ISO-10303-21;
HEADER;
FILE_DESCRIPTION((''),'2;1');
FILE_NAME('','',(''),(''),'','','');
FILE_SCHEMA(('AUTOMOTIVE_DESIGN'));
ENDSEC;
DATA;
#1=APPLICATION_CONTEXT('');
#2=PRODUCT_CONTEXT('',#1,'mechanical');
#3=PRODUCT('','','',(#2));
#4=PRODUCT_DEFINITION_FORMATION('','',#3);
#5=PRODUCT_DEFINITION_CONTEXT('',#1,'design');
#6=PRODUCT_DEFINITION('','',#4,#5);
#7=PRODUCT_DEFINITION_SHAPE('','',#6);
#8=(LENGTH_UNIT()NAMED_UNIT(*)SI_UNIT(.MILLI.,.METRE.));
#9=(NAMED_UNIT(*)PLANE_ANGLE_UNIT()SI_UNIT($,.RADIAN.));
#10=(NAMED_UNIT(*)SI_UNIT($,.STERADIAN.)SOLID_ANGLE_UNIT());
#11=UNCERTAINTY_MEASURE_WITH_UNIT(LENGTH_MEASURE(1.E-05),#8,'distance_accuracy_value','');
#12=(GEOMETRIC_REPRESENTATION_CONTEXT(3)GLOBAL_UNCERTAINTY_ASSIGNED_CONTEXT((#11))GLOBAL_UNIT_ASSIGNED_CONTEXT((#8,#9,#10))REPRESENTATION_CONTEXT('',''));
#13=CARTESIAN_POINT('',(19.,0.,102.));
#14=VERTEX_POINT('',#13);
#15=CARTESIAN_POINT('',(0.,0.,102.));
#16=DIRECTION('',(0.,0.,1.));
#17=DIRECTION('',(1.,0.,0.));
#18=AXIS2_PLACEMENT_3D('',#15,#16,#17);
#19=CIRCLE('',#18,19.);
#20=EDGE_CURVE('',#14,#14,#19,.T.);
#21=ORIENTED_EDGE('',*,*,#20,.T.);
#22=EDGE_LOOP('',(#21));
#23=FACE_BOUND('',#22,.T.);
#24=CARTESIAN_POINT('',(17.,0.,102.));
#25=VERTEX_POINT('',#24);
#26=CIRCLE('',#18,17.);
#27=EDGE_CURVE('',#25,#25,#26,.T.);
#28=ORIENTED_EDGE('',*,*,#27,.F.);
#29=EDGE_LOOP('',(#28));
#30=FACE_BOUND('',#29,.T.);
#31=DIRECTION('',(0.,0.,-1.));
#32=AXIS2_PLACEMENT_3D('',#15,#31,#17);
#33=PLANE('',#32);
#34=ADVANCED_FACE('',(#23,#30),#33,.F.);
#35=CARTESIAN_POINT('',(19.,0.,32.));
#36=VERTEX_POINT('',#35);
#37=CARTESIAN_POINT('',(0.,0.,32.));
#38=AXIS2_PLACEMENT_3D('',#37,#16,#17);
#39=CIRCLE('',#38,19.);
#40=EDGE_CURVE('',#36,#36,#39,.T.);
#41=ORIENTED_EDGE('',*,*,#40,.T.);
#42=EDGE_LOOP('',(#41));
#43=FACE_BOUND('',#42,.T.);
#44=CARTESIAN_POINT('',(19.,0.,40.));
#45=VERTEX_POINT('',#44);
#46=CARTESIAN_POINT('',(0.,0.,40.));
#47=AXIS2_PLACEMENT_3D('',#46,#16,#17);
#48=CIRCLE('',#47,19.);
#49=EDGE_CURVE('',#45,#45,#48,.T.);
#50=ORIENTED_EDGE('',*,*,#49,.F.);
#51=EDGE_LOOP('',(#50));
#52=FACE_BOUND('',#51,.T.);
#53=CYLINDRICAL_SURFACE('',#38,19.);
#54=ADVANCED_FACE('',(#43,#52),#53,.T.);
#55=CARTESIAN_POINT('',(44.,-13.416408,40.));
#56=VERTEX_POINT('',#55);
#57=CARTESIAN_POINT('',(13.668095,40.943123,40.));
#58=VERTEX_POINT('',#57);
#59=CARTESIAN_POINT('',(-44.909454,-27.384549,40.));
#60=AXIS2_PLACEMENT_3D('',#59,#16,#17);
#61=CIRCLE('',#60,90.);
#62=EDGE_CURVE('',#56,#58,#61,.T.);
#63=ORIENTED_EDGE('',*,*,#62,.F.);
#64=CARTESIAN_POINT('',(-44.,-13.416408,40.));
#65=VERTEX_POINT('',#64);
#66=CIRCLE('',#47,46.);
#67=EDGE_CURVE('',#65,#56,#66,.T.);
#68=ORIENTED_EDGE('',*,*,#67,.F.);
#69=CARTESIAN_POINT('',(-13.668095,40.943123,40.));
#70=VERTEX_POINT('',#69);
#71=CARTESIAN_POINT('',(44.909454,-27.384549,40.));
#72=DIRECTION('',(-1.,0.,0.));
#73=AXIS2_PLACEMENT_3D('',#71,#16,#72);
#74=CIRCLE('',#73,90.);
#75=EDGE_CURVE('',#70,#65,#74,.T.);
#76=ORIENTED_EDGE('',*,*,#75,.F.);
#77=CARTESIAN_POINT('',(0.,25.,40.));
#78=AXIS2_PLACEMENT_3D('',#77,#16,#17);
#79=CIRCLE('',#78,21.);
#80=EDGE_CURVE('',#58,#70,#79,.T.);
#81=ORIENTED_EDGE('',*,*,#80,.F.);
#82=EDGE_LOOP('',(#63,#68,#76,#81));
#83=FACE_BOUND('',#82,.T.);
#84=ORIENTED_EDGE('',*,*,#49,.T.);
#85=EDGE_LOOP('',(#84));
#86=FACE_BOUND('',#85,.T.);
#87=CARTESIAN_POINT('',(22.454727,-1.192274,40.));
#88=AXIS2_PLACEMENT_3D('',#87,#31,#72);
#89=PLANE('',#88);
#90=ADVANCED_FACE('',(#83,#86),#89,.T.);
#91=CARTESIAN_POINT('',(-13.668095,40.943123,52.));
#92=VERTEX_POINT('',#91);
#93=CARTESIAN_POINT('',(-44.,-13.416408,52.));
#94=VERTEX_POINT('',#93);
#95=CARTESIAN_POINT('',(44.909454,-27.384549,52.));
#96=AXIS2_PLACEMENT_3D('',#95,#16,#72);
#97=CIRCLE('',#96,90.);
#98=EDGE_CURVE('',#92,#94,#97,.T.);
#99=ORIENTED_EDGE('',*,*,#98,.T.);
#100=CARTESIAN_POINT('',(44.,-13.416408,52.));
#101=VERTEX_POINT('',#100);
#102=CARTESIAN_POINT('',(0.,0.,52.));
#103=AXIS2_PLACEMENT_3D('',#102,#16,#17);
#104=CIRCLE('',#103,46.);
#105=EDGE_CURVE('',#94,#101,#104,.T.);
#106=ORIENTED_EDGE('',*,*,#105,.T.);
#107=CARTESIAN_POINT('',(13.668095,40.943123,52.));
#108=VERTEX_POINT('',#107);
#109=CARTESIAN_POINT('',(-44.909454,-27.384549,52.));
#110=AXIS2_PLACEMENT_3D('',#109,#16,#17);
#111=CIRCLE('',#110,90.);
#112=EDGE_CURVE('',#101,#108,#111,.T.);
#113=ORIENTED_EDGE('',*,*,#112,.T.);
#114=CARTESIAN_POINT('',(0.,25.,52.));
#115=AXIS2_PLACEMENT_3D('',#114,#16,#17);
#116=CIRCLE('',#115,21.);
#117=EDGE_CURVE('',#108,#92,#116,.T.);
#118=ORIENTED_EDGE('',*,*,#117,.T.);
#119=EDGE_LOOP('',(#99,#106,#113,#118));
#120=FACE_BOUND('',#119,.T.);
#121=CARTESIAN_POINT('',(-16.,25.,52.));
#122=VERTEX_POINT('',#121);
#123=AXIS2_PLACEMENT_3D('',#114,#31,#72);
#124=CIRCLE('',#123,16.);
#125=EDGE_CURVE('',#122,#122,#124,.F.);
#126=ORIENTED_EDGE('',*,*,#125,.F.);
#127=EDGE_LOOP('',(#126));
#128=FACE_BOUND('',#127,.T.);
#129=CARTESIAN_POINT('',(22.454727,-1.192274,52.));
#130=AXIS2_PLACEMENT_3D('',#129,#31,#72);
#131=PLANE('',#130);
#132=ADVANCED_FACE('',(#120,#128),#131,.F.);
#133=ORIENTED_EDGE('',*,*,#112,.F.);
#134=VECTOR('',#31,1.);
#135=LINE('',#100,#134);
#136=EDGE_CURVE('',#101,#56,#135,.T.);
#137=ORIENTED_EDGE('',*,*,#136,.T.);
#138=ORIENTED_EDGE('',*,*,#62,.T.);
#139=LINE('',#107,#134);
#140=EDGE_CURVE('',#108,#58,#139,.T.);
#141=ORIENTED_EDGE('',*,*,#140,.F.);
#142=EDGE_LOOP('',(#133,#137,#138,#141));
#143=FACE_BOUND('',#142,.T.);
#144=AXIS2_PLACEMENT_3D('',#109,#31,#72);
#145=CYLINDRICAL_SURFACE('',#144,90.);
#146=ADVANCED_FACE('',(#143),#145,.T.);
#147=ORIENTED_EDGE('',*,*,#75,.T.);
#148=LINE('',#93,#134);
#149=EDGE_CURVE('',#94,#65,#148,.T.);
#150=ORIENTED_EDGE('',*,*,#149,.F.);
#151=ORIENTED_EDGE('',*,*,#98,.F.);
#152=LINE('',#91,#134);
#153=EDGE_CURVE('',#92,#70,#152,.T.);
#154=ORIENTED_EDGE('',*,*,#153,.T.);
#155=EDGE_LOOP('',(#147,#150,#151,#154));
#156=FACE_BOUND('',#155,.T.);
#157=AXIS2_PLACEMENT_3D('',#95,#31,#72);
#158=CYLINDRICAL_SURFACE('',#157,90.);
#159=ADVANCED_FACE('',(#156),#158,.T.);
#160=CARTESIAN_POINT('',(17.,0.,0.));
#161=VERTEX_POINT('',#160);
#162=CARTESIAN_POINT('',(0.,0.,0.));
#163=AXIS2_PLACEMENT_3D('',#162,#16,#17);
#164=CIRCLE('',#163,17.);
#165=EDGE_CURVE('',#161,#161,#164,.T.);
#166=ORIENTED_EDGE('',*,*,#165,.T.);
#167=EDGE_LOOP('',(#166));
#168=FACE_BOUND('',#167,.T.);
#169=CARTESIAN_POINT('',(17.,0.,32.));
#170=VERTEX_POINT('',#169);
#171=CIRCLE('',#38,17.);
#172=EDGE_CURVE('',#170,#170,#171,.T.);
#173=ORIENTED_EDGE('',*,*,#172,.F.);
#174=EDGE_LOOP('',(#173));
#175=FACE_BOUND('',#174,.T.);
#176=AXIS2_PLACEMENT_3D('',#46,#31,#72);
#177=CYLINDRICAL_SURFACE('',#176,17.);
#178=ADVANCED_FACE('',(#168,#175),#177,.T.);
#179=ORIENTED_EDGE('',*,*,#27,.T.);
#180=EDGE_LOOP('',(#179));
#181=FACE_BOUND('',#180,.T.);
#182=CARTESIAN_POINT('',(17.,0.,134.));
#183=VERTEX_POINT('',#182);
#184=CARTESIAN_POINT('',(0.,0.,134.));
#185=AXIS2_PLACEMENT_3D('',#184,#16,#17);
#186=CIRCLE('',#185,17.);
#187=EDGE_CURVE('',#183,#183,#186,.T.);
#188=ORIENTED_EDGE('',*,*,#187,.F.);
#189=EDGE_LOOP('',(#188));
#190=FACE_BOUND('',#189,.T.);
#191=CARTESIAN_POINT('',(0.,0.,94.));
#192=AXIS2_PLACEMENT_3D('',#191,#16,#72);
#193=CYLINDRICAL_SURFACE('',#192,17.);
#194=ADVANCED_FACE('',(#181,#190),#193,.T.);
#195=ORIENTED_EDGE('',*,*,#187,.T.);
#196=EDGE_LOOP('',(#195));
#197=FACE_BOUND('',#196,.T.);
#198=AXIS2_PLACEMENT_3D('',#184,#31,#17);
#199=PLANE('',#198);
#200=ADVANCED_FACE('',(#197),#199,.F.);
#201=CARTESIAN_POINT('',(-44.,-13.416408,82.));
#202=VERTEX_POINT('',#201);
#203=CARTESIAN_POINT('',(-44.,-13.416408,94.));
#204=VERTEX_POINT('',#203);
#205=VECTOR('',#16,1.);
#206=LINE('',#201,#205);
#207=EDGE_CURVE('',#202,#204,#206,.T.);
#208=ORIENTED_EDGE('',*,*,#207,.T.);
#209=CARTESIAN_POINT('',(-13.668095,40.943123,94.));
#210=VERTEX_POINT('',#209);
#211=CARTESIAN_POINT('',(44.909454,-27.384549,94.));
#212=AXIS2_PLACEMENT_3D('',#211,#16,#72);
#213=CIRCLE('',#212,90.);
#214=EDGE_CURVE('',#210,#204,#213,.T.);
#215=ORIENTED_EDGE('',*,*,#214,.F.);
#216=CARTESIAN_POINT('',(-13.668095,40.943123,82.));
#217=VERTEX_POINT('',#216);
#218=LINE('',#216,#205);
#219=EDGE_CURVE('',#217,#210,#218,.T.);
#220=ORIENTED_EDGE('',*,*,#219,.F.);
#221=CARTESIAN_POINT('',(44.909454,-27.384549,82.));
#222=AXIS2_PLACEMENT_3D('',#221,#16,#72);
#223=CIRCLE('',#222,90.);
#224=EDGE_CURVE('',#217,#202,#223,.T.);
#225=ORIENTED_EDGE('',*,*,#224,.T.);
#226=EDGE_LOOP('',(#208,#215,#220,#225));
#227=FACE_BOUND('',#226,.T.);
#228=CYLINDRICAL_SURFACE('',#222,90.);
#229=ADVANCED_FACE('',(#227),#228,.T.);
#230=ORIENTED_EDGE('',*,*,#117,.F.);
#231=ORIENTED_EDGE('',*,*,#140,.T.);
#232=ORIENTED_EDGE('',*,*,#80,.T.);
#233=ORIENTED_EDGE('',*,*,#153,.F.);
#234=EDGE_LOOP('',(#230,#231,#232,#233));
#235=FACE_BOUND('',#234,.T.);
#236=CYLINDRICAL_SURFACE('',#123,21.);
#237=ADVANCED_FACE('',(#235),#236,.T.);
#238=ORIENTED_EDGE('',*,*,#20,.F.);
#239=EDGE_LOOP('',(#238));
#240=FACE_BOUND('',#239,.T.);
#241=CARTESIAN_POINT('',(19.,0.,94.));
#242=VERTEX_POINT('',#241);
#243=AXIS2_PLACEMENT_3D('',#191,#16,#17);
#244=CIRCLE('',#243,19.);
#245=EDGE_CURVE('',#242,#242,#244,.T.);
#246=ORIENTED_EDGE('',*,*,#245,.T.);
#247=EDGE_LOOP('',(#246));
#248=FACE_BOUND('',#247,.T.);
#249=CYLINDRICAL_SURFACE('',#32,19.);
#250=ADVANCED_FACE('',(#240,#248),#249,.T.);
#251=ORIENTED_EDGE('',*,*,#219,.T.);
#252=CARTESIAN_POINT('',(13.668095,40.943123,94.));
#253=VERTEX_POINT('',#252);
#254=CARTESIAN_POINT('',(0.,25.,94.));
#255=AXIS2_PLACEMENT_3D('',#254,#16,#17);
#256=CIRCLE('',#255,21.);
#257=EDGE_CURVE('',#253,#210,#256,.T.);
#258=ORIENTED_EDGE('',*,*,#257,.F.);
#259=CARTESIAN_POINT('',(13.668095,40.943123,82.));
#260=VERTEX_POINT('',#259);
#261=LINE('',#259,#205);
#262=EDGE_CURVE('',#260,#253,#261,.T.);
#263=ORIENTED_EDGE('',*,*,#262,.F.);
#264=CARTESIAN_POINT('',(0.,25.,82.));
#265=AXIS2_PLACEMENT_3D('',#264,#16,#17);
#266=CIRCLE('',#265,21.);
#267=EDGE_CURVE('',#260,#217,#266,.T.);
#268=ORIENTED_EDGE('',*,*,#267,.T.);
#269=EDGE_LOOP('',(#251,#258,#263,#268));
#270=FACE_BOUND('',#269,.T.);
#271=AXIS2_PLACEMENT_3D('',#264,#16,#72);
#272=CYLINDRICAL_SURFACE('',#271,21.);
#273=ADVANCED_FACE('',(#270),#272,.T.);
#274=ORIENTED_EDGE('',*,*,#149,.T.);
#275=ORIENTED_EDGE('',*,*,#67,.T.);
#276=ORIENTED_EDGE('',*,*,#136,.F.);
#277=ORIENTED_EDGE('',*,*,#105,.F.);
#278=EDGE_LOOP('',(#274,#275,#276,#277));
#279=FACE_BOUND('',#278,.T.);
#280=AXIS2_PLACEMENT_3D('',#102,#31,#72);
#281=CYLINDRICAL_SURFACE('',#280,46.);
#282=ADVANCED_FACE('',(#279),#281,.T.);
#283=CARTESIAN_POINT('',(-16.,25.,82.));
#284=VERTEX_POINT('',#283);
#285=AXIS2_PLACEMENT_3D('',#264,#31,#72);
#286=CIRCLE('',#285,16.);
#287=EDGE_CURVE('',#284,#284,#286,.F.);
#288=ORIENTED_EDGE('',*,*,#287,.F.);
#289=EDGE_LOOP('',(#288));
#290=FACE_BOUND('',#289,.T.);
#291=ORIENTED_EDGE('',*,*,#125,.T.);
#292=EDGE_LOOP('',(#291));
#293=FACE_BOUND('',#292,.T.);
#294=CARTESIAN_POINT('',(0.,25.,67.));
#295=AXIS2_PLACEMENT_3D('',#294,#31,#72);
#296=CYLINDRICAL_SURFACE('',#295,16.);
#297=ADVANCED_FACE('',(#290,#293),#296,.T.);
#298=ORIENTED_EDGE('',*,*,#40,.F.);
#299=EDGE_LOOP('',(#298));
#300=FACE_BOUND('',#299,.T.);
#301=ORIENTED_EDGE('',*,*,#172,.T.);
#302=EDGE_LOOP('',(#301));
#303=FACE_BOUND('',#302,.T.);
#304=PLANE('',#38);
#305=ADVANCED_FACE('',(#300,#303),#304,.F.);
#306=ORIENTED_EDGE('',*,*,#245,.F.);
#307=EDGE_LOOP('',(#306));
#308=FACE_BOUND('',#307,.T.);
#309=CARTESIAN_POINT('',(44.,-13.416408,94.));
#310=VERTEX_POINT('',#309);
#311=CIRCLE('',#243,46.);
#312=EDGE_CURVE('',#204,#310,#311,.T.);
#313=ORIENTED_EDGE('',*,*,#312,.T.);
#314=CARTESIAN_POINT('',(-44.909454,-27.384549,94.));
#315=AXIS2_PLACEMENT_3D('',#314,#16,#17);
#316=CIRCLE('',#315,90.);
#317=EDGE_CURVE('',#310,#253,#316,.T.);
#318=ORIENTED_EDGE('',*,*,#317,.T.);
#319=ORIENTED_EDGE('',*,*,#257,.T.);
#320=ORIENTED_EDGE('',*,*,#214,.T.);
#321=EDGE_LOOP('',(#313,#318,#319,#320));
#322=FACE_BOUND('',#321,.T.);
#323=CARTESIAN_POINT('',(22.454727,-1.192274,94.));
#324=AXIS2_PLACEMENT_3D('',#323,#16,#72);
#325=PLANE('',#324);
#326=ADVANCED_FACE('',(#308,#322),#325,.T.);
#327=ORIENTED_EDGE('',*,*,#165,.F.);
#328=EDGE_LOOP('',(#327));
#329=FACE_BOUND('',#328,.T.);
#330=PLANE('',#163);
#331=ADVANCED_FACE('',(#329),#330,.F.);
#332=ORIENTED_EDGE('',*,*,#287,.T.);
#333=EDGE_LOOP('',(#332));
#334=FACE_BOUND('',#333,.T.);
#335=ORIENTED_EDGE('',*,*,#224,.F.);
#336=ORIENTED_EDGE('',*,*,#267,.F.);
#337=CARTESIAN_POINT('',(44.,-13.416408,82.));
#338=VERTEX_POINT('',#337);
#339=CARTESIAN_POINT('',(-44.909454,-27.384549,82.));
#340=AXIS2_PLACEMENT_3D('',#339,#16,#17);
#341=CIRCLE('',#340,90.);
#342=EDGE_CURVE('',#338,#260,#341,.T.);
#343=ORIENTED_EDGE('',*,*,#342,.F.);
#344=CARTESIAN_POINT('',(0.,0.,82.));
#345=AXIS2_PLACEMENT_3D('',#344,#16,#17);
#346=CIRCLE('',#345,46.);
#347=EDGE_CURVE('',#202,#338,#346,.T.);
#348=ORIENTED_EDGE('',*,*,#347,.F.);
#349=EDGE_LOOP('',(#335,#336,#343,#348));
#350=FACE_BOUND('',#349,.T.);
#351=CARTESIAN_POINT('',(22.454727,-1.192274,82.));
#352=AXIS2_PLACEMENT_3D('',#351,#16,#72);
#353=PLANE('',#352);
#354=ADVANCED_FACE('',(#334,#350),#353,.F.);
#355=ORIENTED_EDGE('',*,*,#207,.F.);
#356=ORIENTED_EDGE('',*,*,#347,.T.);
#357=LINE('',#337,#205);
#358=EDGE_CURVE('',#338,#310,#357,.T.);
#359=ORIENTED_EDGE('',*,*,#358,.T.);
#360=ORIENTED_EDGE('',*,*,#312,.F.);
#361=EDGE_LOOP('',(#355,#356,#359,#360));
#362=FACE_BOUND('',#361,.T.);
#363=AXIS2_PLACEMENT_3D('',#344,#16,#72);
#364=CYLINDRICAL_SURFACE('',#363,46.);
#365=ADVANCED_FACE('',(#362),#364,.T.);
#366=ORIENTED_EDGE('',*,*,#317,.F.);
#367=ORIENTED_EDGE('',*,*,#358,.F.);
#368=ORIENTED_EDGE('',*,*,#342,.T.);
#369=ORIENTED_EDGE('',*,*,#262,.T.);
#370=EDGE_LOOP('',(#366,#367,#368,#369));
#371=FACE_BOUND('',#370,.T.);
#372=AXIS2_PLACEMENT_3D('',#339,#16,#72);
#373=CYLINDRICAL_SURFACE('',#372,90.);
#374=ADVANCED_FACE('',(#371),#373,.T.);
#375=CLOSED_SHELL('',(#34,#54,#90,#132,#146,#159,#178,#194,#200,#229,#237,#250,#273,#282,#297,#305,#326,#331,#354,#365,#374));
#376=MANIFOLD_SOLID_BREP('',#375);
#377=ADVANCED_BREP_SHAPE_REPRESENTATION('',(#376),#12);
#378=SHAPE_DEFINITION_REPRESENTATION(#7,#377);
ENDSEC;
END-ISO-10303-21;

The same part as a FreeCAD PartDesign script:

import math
import FreeCAD as App
import Part
import Sketcher

V = App.Vector
Q = App.Units.Quantity

doc = App.newDocument("Part")
body = doc.addObject("PartDesign::Body", "Body")

sketch1 = body.newObject("Sketcher::SketchObject", "Sketch")
sketch1.AttachmentSupport = (doc.getObject("XY_Plane"), [""])
sketch1.MapMode = "FlatFace"
sketch1.addGeometry(Part.Circle(V(0, 0, 0), V(0, 0, 1), 17), False)
sketch1.addConstraint(Sketcher.Constraint("Coincident", 0, 3, -1, 1))
sketch1.addConstraint(Sketcher.Constraint("Diameter", 0, Q("34 mm")))
pad1 = body.newObject("PartDesign::Pad", "Pad")
pad1.Profile = sketch1
pad1.Length = 40

sketch2 = body.newObject("Sketcher::SketchObject", "Sketch001")
sketch2.AttachmentSupport = (doc.getObject("XY_Plane"), [""])
sketch2.MapMode = "FlatFace"
sketch2.AttachmentOffset = App.Placement(V(0, 0, 40), App.Rotation())
sketch2.addGeometry(Part.Circle(V(0, 0, 0), V(0, 0, 1), 19), False)
sketch2.addConstraint(Sketcher.Constraint("Coincident", 0, 3, -1, 1))
sketch2.addConstraint(Sketcher.Constraint("Diameter", 0, Q("38 mm")))
pad2 = body.newObject("PartDesign::Pad", "Pad001")
pad2.Profile = sketch2
pad2.Length = 8
pad2.Reversed = True

sketch3 = body.newObject("Sketcher::SketchObject", "Sketch002")
sketch3.AttachmentSupport = (doc.getObject("XY_Plane"), [""])
sketch3.MapMode = "FlatFace"
sketch3.AttachmentOffset = App.Placement(V(0, 0, 40), App.Rotation())
sketch3.addGeometry(Part.ArcOfCircle(Part.Circle(V(0, 0, 0), V(0, 0, 1), 46), math.radians(-163), math.radians(-17)), False)
sketch3.addGeometry(Part.ArcOfCircle(Part.Circle(V(-45, -27, 0), V(0, 0, 1), 90), math.radians(9), math.radians(49)), False)
sketch3.addGeometry(Part.ArcOfCircle(Part.Circle(V(0, 25, 0), V(0, 0, 1), 21), math.radians(49), math.radians(131)), False)
sketch3.addGeometry(Part.ArcOfCircle(Part.Circle(V(45, -27, 0), V(0, 0, 1), 90), math.radians(131), math.radians(171)), False)
sketch3.addConstraint(Sketcher.Constraint("Coincident", 0, 2, 1, 1))
sketch3.addConstraint(Sketcher.Constraint("Tangent", 1, 2, 2, 1))
sketch3.addConstraint(Sketcher.Constraint("Tangent", 2, 2, 3, 1))
sketch3.addConstraint(Sketcher.Constraint("Coincident", 3, 2, 0, 1))
sketch3.addConstraint(Sketcher.Constraint("Coincident", 0, 3, -1, 1))
sketch3.addConstraint(Sketcher.Constraint("Equal", 1, 3))
sketch3.addConstraint(Sketcher.Constraint("Symmetric", 1, 3, 3, 3, -2))
sketch3.addConstraint(Sketcher.Constraint("Radius", 0, Q("46 mm")))
sketch3.addConstraint(Sketcher.Constraint("Radius", 1, Q("90 mm")))
sketch3.addConstraint(Sketcher.Constraint("Radius", 2, Q("21 mm")))
sketch3.addConstraint(Sketcher.Constraint("DistanceY", -1, 1, 2, 3, Q("25 mm")))
sketch3.addConstraint(Sketcher.Constraint("DistanceX", -1, 1, 0, 2, Q("44 mm")))
pad3 = body.newObject("PartDesign::Pad", "Pad002")
pad3.Profile = sketch3
pad3.Length = 12

sketch4 = body.newObject("Sketcher::SketchObject", "Sketch003")
sketch4.AttachmentSupport = (doc.getObject("XY_Plane"), [""])
sketch4.MapMode = "FlatFace"
sketch4.AttachmentOffset = App.Placement(V(0, 0, 52), App.Rotation())
sketch4.addGeometry(Part.Circle(V(0, 25, 0), V(0, 0, 1), 16), False)
sketch4.addConstraint(Sketcher.Constraint("PointOnObject", 0, 3, -2))
sketch4.addConstraint(Sketcher.Constraint("Diameter", 0, Q("32 mm")))
sketch4.addConstraint(Sketcher.Constraint("DistanceY", -1, 1, 0, 3, Q("25 mm")))
pad4 = body.newObject("PartDesign::Pad", "Pad003")
pad4.Profile = sketch4
pad4.Length = 15
body2 = doc.addObject("PartDesign::Body", "Body001")
doc.recompute()

body2.BaseFeature = body
doc.recompute()

mirroring = doc.addObject("Part::Mirroring", "Mirroring")
mirroring.Source = body
mirroring.Base = V(0, 25, 67)
mirroring.Normal = V(0, 0, 1)
body3 = doc.addObject("PartDesign::Body", "Body002")
body3.BaseFeature = mirroring
boolean = body2.newObject("PartDesign::Boolean", "Boolean")
boolean.Type = "Fuse"
boolean.addObjects([body3])
doc.recompute()
mirroring.Visibility = False

doc.recompute()
